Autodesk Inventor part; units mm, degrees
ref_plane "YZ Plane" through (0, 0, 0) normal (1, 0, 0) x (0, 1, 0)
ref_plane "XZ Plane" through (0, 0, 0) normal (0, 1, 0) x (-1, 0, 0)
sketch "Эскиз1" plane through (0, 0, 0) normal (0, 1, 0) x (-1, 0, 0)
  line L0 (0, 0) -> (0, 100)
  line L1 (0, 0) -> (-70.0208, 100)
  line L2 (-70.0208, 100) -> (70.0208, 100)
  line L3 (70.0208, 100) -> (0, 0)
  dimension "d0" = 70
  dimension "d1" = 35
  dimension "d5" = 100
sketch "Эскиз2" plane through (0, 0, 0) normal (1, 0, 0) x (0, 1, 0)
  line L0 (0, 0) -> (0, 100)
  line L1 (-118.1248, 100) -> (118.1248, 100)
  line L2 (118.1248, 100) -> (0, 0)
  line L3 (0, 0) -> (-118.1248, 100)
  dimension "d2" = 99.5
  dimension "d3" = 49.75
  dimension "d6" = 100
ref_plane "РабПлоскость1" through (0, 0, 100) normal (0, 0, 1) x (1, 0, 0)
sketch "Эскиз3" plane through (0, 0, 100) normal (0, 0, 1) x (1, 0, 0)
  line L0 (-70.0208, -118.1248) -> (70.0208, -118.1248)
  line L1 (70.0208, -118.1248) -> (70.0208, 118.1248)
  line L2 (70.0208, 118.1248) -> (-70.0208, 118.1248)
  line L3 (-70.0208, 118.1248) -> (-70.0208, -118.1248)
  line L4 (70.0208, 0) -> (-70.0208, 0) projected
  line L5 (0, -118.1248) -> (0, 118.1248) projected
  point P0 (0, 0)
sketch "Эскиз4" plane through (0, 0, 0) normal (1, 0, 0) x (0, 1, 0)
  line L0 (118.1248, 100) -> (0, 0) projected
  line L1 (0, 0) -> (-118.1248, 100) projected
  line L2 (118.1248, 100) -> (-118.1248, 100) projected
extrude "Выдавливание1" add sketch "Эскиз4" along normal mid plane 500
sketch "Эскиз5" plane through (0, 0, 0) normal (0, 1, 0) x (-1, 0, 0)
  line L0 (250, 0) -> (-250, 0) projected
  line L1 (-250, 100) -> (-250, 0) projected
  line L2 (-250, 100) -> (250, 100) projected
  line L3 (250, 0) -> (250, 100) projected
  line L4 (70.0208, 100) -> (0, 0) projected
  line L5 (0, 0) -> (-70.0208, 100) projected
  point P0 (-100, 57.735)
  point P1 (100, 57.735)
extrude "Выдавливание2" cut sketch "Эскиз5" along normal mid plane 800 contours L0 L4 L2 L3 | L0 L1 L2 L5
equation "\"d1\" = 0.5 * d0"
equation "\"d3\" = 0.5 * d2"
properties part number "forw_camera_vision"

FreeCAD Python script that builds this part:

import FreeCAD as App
import Part
import Sketcher
Q = App.Units.Quantity


def add_polygon(sketch, points):
    """Adds a closed chain of lines whose ends are joined by coincident constraints."""
    first, n = sketch.GeometryCount, len(points)
    for a, b in zip(points, points[1:] + points[:1]):
        sketch.addGeometry(Part.LineSegment(App.Vector(*a, 0), App.Vector(*b, 0)), False)
    for i in range(n):
        sketch.addConstraint(Sketcher.Constraint("Coincident", first + i, 2, first + (i + 1) % n, 1))

doc = App.newDocument("Part")
body = doc.addObject("PartDesign::Body", "Body")

# Sketch on YZ plane
sketch1 = body.newObject("Sketcher::SketchObject", "Sketch")
sketch1.AttachmentSupport = (doc.getObject("YZ_Plane"), [""])
sketch1.MapMode = "FlatFace"
add_polygon(sketch1, [(0, 0), (118.1248, 100), (-118.1248, 100)])  # lines 0-2
sketch1.addConstraint([
    Sketcher.Constraint("Horizontal", 1),
    Sketcher.Constraint("Coincident", 2, 2, -1, 1),
    Sketcher.Constraint("Equal", 0, 2),
    Sketcher.Constraint("DistanceY", -1, 1, 0, 2, Q("100 mm")),
    Sketcher.Constraint("Angle", 0, Q("40.25 deg")),
])
pad1 = body.newObject("PartDesign::Pad", "Pad")
pad1.Profile = sketch1
pad1.Length = 500
pad1.Midplane = True

# Sketch on XZ plane
sketch2 = body.newObject("Sketcher::SketchObject", "Sketch001")
sketch2.AttachmentSupport = (doc.getObject("XZ_Plane"), [""])
sketch2.MapMode = "FlatFace"
add_polygon(sketch2, [(0, 0), (-250, 0), (-250, 100), (-70.0208, 100)])  # lines 0-3
add_polygon(sketch2, [(250, 0), (0, 0), (70.0208, 100), (250, 100)])  # lines 4-7
sketch2.addConstraint([
    Sketcher.Constraint("Horizontal", 0),
    Sketcher.Constraint("Vertical", 1),
    Sketcher.Constraint("Horizontal", 2),
    Sketcher.Constraint("Horizontal", 4),
    Sketcher.Constraint("Horizontal", 6),
    Sketcher.Constraint("Vertical", 7),
    Sketcher.Constraint("Coincident", 3, 2, -1, 1),
    Sketcher.Constraint("Coincident", 4, 2, -1, 1),
    Sketcher.Constraint("Symmetric", 2, 2, 5, 2, -2),
    Sketcher.Constraint("Equal", 0, 4),
    Sketcher.Constraint("DistanceX", 0, 2, 0, 1, Q("250 mm")),
    Sketcher.Constraint("DistanceY", 1, 1, 1, 2, Q("100 mm")),
    Sketcher.Constraint("Angle", 3, Q("-55 deg")),
])
pocket1 = body.newObject("PartDesign::Pocket", "Pocket")
pocket1.Profile = sketch2
pocket1.Length = 800
pocket1.Midplane = True

doc.recompute()
